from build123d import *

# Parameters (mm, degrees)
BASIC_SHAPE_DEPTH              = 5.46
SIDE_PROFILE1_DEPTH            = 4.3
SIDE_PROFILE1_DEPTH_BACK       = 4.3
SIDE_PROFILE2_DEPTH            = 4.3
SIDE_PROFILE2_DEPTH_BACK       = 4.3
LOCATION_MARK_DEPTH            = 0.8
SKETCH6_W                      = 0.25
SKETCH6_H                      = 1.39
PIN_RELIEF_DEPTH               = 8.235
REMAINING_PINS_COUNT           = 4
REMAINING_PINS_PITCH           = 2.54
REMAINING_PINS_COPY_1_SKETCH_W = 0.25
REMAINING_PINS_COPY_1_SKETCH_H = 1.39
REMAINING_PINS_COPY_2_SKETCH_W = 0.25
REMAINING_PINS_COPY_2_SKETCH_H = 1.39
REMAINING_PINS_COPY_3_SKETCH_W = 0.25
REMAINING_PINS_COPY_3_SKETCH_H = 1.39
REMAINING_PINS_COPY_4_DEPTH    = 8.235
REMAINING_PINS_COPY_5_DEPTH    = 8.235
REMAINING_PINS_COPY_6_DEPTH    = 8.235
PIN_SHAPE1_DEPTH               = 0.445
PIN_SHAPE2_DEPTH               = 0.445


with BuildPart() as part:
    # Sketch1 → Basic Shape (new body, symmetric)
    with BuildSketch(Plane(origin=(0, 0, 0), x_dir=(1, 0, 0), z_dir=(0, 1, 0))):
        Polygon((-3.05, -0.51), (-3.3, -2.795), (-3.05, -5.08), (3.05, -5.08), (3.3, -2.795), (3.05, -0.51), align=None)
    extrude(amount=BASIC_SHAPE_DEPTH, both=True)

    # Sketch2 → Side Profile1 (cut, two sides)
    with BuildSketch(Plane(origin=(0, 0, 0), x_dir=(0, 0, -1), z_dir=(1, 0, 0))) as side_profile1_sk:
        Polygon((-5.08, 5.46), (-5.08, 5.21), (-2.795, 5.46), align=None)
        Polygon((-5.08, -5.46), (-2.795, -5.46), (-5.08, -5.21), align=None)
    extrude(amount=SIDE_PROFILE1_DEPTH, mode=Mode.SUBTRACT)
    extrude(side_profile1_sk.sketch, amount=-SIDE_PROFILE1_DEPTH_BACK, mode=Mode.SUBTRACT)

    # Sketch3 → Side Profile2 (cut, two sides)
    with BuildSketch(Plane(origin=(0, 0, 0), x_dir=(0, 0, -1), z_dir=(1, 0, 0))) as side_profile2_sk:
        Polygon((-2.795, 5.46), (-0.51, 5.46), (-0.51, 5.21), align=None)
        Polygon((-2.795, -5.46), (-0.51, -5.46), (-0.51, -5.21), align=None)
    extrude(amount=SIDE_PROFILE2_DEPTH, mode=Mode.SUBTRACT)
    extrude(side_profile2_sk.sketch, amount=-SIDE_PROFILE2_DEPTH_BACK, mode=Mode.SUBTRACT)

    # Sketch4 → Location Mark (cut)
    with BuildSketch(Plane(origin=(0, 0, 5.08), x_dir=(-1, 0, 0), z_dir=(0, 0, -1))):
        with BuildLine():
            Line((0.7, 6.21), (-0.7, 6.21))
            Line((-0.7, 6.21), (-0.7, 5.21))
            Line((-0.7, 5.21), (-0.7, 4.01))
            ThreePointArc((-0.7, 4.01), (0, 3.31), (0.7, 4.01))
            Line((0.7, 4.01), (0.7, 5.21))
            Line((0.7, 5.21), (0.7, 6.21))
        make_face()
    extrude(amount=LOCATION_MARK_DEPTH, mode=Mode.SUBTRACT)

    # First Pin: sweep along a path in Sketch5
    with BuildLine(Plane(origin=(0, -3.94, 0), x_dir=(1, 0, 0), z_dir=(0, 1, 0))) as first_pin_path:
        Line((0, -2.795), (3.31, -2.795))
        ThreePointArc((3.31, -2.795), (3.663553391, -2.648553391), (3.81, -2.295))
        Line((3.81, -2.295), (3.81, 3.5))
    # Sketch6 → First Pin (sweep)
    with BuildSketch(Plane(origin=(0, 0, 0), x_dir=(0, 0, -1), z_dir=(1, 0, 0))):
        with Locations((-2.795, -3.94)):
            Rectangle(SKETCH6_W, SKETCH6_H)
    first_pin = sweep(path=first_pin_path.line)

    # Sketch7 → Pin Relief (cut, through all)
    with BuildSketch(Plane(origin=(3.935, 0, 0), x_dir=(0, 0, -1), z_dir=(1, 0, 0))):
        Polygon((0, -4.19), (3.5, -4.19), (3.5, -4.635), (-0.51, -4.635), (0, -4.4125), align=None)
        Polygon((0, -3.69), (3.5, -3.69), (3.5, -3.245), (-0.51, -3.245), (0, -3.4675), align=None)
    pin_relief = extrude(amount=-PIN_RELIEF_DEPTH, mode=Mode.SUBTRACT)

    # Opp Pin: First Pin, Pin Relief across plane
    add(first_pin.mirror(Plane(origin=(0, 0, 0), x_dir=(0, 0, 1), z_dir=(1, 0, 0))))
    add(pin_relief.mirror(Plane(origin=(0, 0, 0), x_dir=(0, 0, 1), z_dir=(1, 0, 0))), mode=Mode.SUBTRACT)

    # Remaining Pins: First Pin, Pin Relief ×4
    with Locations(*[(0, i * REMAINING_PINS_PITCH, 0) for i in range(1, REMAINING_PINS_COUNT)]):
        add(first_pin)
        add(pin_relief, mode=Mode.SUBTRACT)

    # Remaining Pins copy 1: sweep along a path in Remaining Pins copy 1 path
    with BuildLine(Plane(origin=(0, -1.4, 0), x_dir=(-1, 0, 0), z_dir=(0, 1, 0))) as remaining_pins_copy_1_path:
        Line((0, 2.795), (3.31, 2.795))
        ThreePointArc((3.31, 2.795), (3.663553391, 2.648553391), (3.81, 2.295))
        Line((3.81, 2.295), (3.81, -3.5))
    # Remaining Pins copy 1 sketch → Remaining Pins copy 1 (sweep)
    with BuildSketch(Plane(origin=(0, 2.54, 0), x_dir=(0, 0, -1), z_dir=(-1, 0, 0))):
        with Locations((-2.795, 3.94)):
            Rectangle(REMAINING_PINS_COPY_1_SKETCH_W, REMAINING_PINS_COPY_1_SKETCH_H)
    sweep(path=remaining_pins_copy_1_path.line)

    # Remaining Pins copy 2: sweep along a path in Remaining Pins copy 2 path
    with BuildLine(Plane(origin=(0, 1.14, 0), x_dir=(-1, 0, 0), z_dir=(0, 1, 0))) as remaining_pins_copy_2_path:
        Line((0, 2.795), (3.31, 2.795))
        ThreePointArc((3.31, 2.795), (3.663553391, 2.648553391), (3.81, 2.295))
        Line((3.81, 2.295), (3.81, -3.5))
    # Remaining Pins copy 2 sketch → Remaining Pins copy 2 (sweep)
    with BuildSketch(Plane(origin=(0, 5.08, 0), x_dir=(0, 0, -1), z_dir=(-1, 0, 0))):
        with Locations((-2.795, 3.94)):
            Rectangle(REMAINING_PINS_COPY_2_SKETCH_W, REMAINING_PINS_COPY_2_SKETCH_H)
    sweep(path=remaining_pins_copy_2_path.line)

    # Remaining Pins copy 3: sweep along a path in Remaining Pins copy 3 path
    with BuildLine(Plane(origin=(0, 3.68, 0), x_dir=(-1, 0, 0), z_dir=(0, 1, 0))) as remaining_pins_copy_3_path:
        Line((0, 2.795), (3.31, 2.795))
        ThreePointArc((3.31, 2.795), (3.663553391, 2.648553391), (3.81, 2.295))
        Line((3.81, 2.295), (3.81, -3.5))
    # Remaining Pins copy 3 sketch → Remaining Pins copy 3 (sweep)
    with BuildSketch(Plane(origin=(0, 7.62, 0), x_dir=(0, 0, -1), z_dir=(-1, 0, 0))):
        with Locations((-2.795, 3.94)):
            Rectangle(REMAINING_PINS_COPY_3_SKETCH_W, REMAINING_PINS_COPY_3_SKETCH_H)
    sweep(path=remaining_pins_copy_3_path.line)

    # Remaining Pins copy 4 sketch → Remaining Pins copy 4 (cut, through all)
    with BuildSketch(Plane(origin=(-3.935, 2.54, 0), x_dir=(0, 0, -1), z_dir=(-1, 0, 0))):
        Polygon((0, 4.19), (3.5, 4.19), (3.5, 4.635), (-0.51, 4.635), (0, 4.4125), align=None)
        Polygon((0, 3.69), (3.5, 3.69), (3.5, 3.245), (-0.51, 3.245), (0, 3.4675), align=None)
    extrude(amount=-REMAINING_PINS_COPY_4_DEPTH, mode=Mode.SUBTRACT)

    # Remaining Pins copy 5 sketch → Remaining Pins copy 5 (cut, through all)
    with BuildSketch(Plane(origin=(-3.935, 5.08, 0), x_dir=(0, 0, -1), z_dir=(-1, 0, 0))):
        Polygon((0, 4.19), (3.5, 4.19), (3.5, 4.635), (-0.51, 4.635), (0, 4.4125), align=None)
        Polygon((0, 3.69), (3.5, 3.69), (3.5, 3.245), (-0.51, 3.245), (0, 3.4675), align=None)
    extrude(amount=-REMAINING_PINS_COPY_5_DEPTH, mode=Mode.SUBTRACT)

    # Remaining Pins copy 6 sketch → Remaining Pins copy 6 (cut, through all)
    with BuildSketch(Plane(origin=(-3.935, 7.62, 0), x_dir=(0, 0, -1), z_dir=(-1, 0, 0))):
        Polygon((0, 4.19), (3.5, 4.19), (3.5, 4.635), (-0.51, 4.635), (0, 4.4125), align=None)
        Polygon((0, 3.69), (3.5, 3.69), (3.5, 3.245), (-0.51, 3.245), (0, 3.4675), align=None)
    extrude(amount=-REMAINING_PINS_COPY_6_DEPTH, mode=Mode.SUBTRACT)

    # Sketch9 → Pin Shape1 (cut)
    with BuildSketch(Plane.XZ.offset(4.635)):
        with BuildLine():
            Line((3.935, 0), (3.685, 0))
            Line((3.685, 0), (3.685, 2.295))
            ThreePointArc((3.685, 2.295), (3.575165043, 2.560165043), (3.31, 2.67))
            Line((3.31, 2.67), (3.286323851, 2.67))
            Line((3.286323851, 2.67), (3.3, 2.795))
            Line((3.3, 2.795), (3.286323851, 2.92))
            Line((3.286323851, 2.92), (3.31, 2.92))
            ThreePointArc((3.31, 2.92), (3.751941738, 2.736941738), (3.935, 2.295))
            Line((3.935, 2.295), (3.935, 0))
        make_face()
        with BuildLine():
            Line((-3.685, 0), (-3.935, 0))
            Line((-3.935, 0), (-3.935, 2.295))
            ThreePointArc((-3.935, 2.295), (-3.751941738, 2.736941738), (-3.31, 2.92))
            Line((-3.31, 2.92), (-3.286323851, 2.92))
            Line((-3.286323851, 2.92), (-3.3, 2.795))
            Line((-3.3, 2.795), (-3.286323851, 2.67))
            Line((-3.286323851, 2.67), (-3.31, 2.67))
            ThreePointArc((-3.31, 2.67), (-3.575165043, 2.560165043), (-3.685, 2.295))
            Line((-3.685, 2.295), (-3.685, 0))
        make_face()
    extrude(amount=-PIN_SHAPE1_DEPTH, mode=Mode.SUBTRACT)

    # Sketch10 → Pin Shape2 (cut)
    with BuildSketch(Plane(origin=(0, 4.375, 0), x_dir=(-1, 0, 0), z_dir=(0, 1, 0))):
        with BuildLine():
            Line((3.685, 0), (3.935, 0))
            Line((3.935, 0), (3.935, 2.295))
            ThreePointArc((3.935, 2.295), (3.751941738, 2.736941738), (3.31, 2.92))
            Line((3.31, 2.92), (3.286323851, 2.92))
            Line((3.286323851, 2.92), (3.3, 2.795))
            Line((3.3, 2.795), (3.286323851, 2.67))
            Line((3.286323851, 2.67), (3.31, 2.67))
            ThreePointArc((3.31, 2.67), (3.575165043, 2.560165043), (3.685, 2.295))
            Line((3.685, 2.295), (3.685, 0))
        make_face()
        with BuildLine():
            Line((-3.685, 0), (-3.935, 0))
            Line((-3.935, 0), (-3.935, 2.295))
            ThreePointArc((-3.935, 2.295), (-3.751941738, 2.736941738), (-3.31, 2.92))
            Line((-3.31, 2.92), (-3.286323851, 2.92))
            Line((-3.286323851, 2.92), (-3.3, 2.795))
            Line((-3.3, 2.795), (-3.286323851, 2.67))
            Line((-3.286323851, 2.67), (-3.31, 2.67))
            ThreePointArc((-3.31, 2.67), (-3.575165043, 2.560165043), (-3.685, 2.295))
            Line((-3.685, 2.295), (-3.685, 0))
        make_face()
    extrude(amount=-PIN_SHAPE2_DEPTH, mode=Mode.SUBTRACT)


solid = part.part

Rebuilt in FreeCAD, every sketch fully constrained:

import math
import FreeCAD as App
import Part
import Sketcher


def add_polygon(sketch, points):
    """Adds a closed chain of lines whose ends are joined by coincident constraints."""
    first, n = sketch.GeometryCount, len(points)
    for a, b in zip(points, points[1:] + points[:1]):
        sketch.addGeometry(Part.LineSegment(App.Vector(*a, 0), App.Vector(*b, 0)), False)
    for i in range(n):
        sketch.addConstraint(Sketcher.Constraint("Coincident", first + i, 2, first + (i + 1) % n, 1))

doc = App.newDocument("Part")
params = doc.addObject("Spreadsheet::Sheet", "Params")
for row, (alias, value) in enumerate([
    ("sketch1_width", "6.1 mm"),
    ("pad1_length", "10.92 mm"),
    ("sketch2_width", "0.25 mm"),
    ("sketch3_width", "0.25 mm"),
    ("sketch4_radius", "0.7 mm"),
    ("sketch4_height", "2.2 mm"),
    ("pocket3_length", "0.8 mm"),
    ("sketch5_width", "1.39 mm"),
    ("sketch5_height", "0.25 mm"),
    ("sketch6_radius", "0.5 mm"),
    ("sketch6_width", "3.31 mm"),
    ("sketch7_height", "3.5 mm"),
    ("sketch7_height2", "4.01 mm"),
    ("linearpattern_pitch", "2.54 mm"),
    ("sketch8_width", "1.39 mm"),
    ("sketch8_height", "0.25 mm"),
    ("sketch9_radius", "0.5 mm"),
    ("sketch9_width", "3.31 mm"),
    ("sketch10_width", "1.39 mm"),
    ("sketch10_height", "0.25 mm"),
    ("sketch11_radius", "0.5 mm"),
    ("sketch11_width", "3.31 mm"),
    ("sketch12_width", "1.39 mm"),
    ("sketch12_height", "0.25 mm"),
    ("sketch13_radius", "0.5 mm"),
    ("sketch13_width", "3.31 mm"),
    ("sketch14_height", "3.5 mm"),
    ("sketch14_height2", "4.01 mm"),
    ("sketch15_height", "3.5 mm"),
    ("sketch15_height2", "4.01 mm"),
    ("sketch16_height", "3.5 mm"),
    ("sketch16_height2", "4.01 mm"),
    ("pocket8_length", "0.445 mm"),
    ("pocket9_length", "0.445 mm"),
], start=1):
    params.set(f"A{row}", alias)
    params.set(f"B{row}", "=" + value)
    params.setAlias(f"B{row}", alias)

body = doc.addObject("PartDesign::Body", "Body")

# Sketch on XZ plane
sketch1 = doc.addObject("Sketcher::SketchObject", "Sketch")
body.addObject(sketch1)
sketch1.AttachmentSupport = (doc.XZ_Plane, [""])
sketch1.MapMode = "FlatFace"
add_polygon(sketch1, [(-3.05, 0.51), (-3.3, 2.795), (-3.05, 5.08), (3.05, 5.08), (3.3, 2.795), (3.05, 0.51)])  # lines 0-5
sketch1.addConstraint([
    Sketcher.Constraint("Horizontal", 2),
    Sketcher.Constraint("Horizontal", 5),
    Sketcher.Constraint("Symmetric", 0, 2, 3, 2, -2),
    Sketcher.Constraint("Parallel", 0, 3),
    Sketcher.Constraint("Parallel", 1, 4),
    Sketcher.Constraint("Vertical", 2, 2, 4, 2),
    Sketcher.Constraint("Vertical", 1, 2, 5, 2),
    Sketcher.Constraint("DistanceX", 2, 1, 2, 2, 6.1),
    Sketcher.Constraint("DistanceX", 0, 2, -1, 1, 3.3),
    Sketcher.Constraint("DistanceY", -1, 1, 1, 2, 5.08),
    Sketcher.Constraint("DistanceY", -1, 1, 4, 2, 0.51),
])
sketch1.setExpression("Constraints[13]", "Params.sketch1_width")
pad1 = doc.addObject("PartDesign::Pad", "Pad")
body.addObject(pad1)
pad1.Profile = sketch1
pad1.setExpression("Length", "Params.pad1_length")
pad1.Midplane = True

# Sketch on YZ plane
sketch2 = doc.addObject("Sketcher::SketchObject", "Sketch001")
body.addObject(sketch2)
sketch2.AttachmentSupport = (doc.YZ_Plane, [""])
sketch2.MapMode = "FlatFace"
add_polygon(sketch2, [(5.46, 5.08), (5.21, 5.08), (5.46, 2.795)])  # lines 0-2
add_polygon(sketch2, [(-5.46, 5.08), (-5.46, 2.795), (-5.21, 5.08)])  # lines 3-5
sketch2.addConstraint([
    Sketcher.Constraint("Horizontal", 0),
    Sketcher.Constraint("Vertical", 2),
    Sketcher.Constraint("Vertical", 3),
    Sketcher.Constraint("Horizontal", 5),
    Sketcher.Constraint("Symmetric", 1, 2, 3, 2, -2),
    Sketcher.Constraint("Symmetric", 0, 2, 4, 2, -2),
    Sketcher.Constraint("DistanceX", 0, 2, 0, 1, 0.25),
    Sketcher.Constraint("DistanceY", 2, 1, 2, 2, 2.285),
    Sketcher.Constraint("DistanceX", -1, 1, 0, 2, 5.21),
    Sketcher.Constraint("DistanceY", -1, 1, 0, 2, 5.08),
])
sketch2.setExpression("Constraints[12]", "Params.sketch2_width")
pocket1 = doc.addObject("PartDesign::Pocket", "Pocket")
body.addObject(pocket1)
pocket1.Profile = sketch2
pocket1.Type = "ThroughAll"
pocket1.Midplane = True

# Sketch on YZ plane
sketch3 = doc.addObject("Sketcher::SketchObject", "Sketch002")
body.addObject(sketch3)
sketch3.AttachmentSupport = (doc.YZ_Plane, [""])
sketch3.MapMode = "FlatFace"
add_polygon(sketch3, [(5.46, 0.51), (5.46, 2.795), (5.21, 0.51)])  # lines 0-2
add_polygon(sketch3, [(-5.46, 2.795), (-5.46, 0.51), (-5.21, 0.51)])  # lines 3-5
sketch3.addConstraint([
    Sketcher.Constraint("Vertical", 0),
    Sketcher.Constraint("Horizontal", 2),
    Sketcher.Constraint("Vertical", 3),
    Sketcher.Constraint("Horizontal", 4),
    Sketcher.Constraint("Symmetric", 2, 2, 3, 2, -2),
    Sketcher.Constraint("Horizontal", 0, 2, 5, 2),
    Sketcher.Constraint("Equal", 2, 4),
    Sketcher.Constraint("DistanceX", 2, 1, 2, 2, 0.25),
    Sketcher.Constraint("DistanceY", 0, 1, 0, 2, 2.285),
    Sketcher.Constraint("DistanceX", -1, 1, 0, 2, 5.46),
    Sketcher.Constraint("DistanceY", -1, 1, 1, 2, 0.51),
])
sketch3.setExpression("Constraints[13]", "Params.sketch3_width")
pocket2 = doc.addObject("PartDesign::Pocket", "Pocket001")
body.addObject(pocket2)
pocket2.Profile = sketch3
pocket2.Type = "ThroughAll"
pocket2.Midplane = True

# Sketch on XY plane
sketch4 = doc.addObject("Sketcher::SketchObject", "Sketch003")
body.addObject(sketch4)
sketch4.AttachmentSupport = (doc.XY_Plane, [""])
sketch4.MapMode = "FlatFace"
sketch4.AttachmentOffset = App.Placement(App.Vector(0, 0, 5.08), App.Rotation())
sketch4.addGeometry([
    Part.LineSegment(App.Vector(-0.7, 6.21, 0), App.Vector(0.7, 6.21, 0)),
    Part.LineSegment(App.Vector(0.7, 6.21, 0), App.Vector(0.7, 4.01, 0)),
    Part.ArcOfCircle(Part.Circle(App.Vector(0, 4.01, 0), App.Vector(0, 0, 1), 0.7), math.radians(180), math.radians(360)),
    Part.LineSegment(App.Vector(-0.7, 4.01, 0), App.Vector(-0.7, 6.21, 0)),
], False)
sketch4.addConstraint([
    Sketcher.Constraint("Coincident", 0, 2, 1, 1),
    Sketcher.Constraint("Tangent", 1, 2, 2, 2),
    Sketcher.Constraint("Tangent", 2, 1, 3, 1),
    Sketcher.Constraint("Coincident", 3, 2, 0, 1),
    Sketcher.Constraint("Horizontal", 0),
    Sketcher.Constraint("Vertical", 1),
    Sketcher.Constraint("Vertical", 3),
    Sketcher.Constraint("PointOnObject", 2, 3, -2),
    Sketcher.Constraint("Radius", 2, 0.7),
    Sketcher.Constraint("DistanceY", 1, 2, 1, 1, 2.2),
    Sketcher.Constraint("DistanceY", -1, 1, 2, 3, 4.01),
])
sketch4.setExpression("Constraints[8]", "Params.sketch4_radius")
sketch4.setExpression("Constraints[9]", "Params.sketch4_height")
pocket3 = doc.addObject("PartDesign::Pocket", "Pocket002")
body.addObject(pocket3)
pocket3.Profile = sketch4
pocket3.setExpression("Length", "Params.pocket3_length")

# Sketch on YZ plane
sketch5 = doc.addObject("Sketcher::SketchObject", "Sketch004")
body.addObject(sketch5)
sketch5.AttachmentSupport = (doc.YZ_Plane, [""])
sketch5.MapMode = "FlatFace"
add_polygon(sketch5, [(-3.245, 2.92), (-4.635, 2.92), (-4.635, 2.67), (-3.245, 2.67)])  # lines 0-3
sketch5.addConstraint([
    Sketcher.Constraint("Horizontal", 0),
    Sketcher.Constraint("Vertical", 1),
    Sketcher.Constraint("Horizontal", 2),
    Sketcher.Constraint("Vertical", 3),
    Sketcher.Constraint("DistanceX", 0, 2, 0, 1, 1.39),
    Sketcher.Constraint("DistanceY", 1, 2, 1, 1, 0.25),
    Sketcher.Constraint("DistanceY", -1, 1, 0, 2, 2.92),
    Sketcher.Constraint("DistanceX", 0, 2, -1, 1, 4.635),
])
sketch5.setExpression("Constraints[8]", "Params.sketch5_width")
sketch5.setExpression("Constraints[9]", "Params.sketch5_height")

# Sketch on XZ plane
sketch6 = doc.addObject("Sketcher::SketchObject", "Sketch005")
body.addObject(sketch6)
sketch6.AttachmentSupport = (doc.XZ_Plane, [""])
sketch6.MapMode = "FlatFace"
sketch6.AttachmentOffset = App.Placement(App.Vector(0, 0, 3.94), App.Rotation())
sketch6.addGeometry([
    Part.LineSegment(App.Vector(0, 2.795, 0), App.Vector(3.31, 2.795, 0)),
    Part.ArcOfCircle(Part.Circle(App.Vector(3.31, 2.295, 0), App.Vector(0, 0, 1), 0.5), math.radians(0), math.radians(90)),
    Part.LineSegment(App.Vector(3.81, 2.295, 0), App.Vector(3.81, -3.5, 0)),
], False)
sketch6.addConstraint([
    Sketcher.Constraint("Tangent", 0, 2, 1, 2),
    Sketcher.Constraint("Tangent", 1, 1, 2, 1),
    Sketcher.Constraint("Horizontal", 0),
    Sketcher.Constraint("Vertical", 2),
    Sketcher.Constraint("PointOnObject", 0, 1, -2),
    Sketcher.Constraint("Radius", 1, 0.5),
    Sketcher.Constraint("DistanceX", 0, 1, 0, 2, 3.31),
    Sketcher.Constraint("DistanceY", 2, 2, -1, 1, 3.5),
    Sketcher.Constraint("DistanceY", 2, 2, 2, 1, 5.795),
])
sketch6.setExpression("Constraints[5]", "Params.sketch6_radius")
sketch6.setExpression("Constraints[6]", "Params.sketch6_width")
doc.recompute()

additivepipe = doc.addObject("PartDesign::AdditivePipe", "AdditivePipe")
body.addObject(additivepipe)
additivepipe.Profile = sketch5
additivepipe.Spine = (sketch6, ["Edge1", "Edge2", "Edge3"])

# Sketch on YZ plane
sketch7 = doc.addObject("Sketcher::SketchObject", "Sketch006")
body.addObject(sketch7)
sketch7.AttachmentSupport = (doc.YZ_Plane, [""])
sketch7.MapMode = "FlatFace"
sketch7.AttachmentOffset = App.Placement(App.Vector(0, 0, 3.935), App.Rotation())
add_polygon(sketch7, [(-4.19, -3.5), (-4.19, 0), (-4.4125, 0), (-4.635, 0.51), (-4.635, -3.5)])  # lines 0-4
add_polygon(sketch7, [(-3.69, 0), (-3.69, -3.5), (-3.245, -3.5), (-3.245, 0.51), (-3.4675, 0)])  # lines 5-9
sketch7.addConstraint([
    Sketcher.Constraint("Vertical", 0),
    Sketcher.Constraint("Horizontal", 1),
    Sketcher.Constraint("Vertical", 3),
    Sketcher.Constraint("Horizontal", 4),
    Sketcher.Constraint("Vertical", 5),
    Sketcher.Constraint("Horizontal", 6),
    Sketcher.Constraint("Vertical", 7),
    Sketcher.Constraint("Horizontal", 9),
    Sketcher.Constraint("PointOnObject", 0, 2, -1),
    Sketcher.Constraint("PointOnObject", 8, 2, -1),
    Sketcher.Constraint("Horizontal", 4, 2, 5, 2),
    Sketcher.Constraint("Horizontal", 2, 2, 7, 2),
    Sketcher.Constraint("Equal", 4, 6),
    Sketcher.Constraint("Equal", 1, 9),
    Sketcher.Constraint("DistanceY", 0, 1, 0, 2, 3.5),
    Sketcher.Constraint("DistanceY", 3, 2, 3, 1, 4.01),
    Sketcher.Constraint("DistanceX", 4, 2, 5, 2, 0.5),
    Sketcher.Constraint("DistanceX", 4, 1, 4, 2, 0.445),
    Sketcher.Constraint("DistanceX", 0, 2, -1, 1, 4.19),
    Sketcher.Constraint("DistanceX", 1, 2, 1, 1, 0.2225),
])
sketch7.setExpression("Constraints[24]", "Params.sketch7_height")
sketch7.setExpression("Constraints[25]", "Params.sketch7_height2")
pocket4 = doc.addObject("PartDesign::Pocket", "Pocket003")
body.addObject(pocket4)
pocket4.Profile = sketch7
pocket4.Type = "ThroughAll"
doc.recompute()

mirrored = doc.addObject("PartDesign::Mirrored", "Mirrored")
body.addObject(mirrored)
mirrored.Originals = [additivepipe, pocket4]
mirrored.MirrorPlane = (doc.YZ_Plane, [""])
body.Tip = mirrored
doc.recompute()

linearpattern = doc.addObject("PartDesign::LinearPattern", "LinearPattern")
body.addObject(linearpattern)
linearpattern.Originals = [additivepipe, pocket4]
linearpattern.Direction = (doc.Y_Axis, [""])
linearpattern.Mode = "offset"
linearpattern.setExpression("Offset", "Params.linearpattern_pitch")
linearpattern.Occurrences = 4
body.Tip = linearpattern

# Sketch on YZ plane
sketch8 = doc.addObject("Sketcher::SketchObject", "Sketch007")
body.addObject(sketch8)
sketch8.AttachmentSupport = (doc.YZ_Plane, [""])
sketch8.MapMode = "FlatFace"
add_polygon(sketch8, [(-2.095, 2.92), (-0.705, 2.92), (-0.705, 2.67), (-2.095, 2.67)])  # lines 0-3
sketch8.addConstraint([
    Sketcher.Constraint("Horizontal", 0),
    Sketcher.Constraint("Vertical", 1),
    Sketcher.Constraint("Horizontal", 2),
    Sketcher.Constraint("Vertical", 3),
    Sketcher.Constraint("DistanceX", 0, 1, 0, 2, 1.39),
    Sketcher.Constraint("DistanceY", 1, 2, 1, 1, 0.25),
    Sketcher.Constraint("DistanceY", -1, 1, 0, 2, 2.92),
    Sketcher.Constraint("DistanceX", 0, 2, -1, 1, 0.705),
])
sketch8.setExpression("Constraints[8]", "Params.sketch8_width")
sketch8.setExpression("Constraints[9]", "Params.sketch8_height")

# Sketch on XZ plane
sketch9 = doc.addObject("Sketcher::SketchObject", "Sketch008")
body.addObject(sketch9)
sketch9.AttachmentSupport = (doc.XZ_Plane, [""])
sketch9.MapMode = "FlatFace"
sketch9.AttachmentOffset = App.Placement(App.Vector(0, 0, 1.4), App.Rotation())
sketch9.addGeometry([
    Part.LineSegment(App.Vector(0, 2.795, 0), App.Vector(-3.31, 2.795, 0)),
    Part.ArcOfCircle(Part.Circle(App.Vector(-3.31, 2.295, 0), App.Vector(0, 0, 1), 0.5), math.radians(90), math.radians(180)),
    Part.LineSegment(App.Vector(-3.81, 2.295, 0), App.Vector(-3.81, -3.5, 0)),
], False)
sketch9.addConstraint([
    Sketcher.Constraint("Tangent", 0, 2, 1, 1),
    Sketcher.Constraint("Tangent", 1, 2, 2, 1),
    Sketcher.Constraint("Horizontal", 0),
    Sketcher.Constraint("Vertical", 2),
    Sketcher.Constraint("PointOnObject", 0, 1, -2),
    Sketcher.Constraint("Radius", 1, 0.5),
    Sketcher.Constraint("DistanceX", 0, 2, 0, 1, 3.31),
    Sketcher.Constraint("DistanceY", 2, 2, -1, 1, 3.5),
    Sketcher.Constraint("DistanceY", 2, 2, 2, 1, 5.795),
])
sketch9.setExpression("Constraints[5]", "Params.sketch9_radius")
sketch9.setExpression("Constraints[6]", "Params.sketch9_width")
doc.recompute()

additivepipe2 = doc.addObject("PartDesign::AdditivePipe", "AdditivePipe001")
body.addObject(additivepipe2)
additivepipe2.Profile = sketch8
additivepipe2.Spine = (sketch9, ["Edge1", "Edge2", "Edge3"])

# Sketch on YZ plane
sketch10 = doc.addObject("Sketcher::SketchObject", "Sketch009")
body.addObject(sketch10)
sketch10.AttachmentSupport = (doc.YZ_Plane, [""])
sketch10.MapMode = "FlatFace"
add_polygon(sketch10, [(0.445, 2.92), (1.835, 2.92), (1.835, 2.67), (0.445, 2.67)])  # lines 0-3
sketch10.addConstraint([
    Sketcher.Constraint("Horizontal", 0),
    Sketcher.Constraint("Vertical", 1),
    Sketcher.Constraint("Horizontal", 2),
    Sketcher.Constraint("Vertical", 3),
    Sketcher.Constraint("DistanceX", 0, 1, 0, 2, 1.39),
    Sketcher.Constraint("DistanceY", 1, 2, 1, 1, 0.25),
    Sketcher.Constraint("DistanceY", -1, 1, 0, 2, 2.92),
    Sketcher.Constraint("DistanceX", -1, 1, 0, 2, 1.835),
])
sketch10.setExpression("Constraints[8]", "Params.sketch10_width")
sketch10.setExpression("Constraints[9]", "Params.sketch10_height")

# Sketch on XZ plane
sketch11 = doc.addObject("Sketcher::SketchObject", "Sketch010")
body.addObject(sketch11)
sketch11.AttachmentSupport = (doc.XZ_Plane, [""])
sketch11.MapMode = "FlatFace"
sketch11.AttachmentOffset = App.Placement(App.Vector(0, 0, -1.14), App.Rotation())
sketch11.addGeometry([
    Part.LineSegment(App.Vector(0, 2.795, 0), App.Vector(-3.31, 2.795, 0)),
    Part.ArcOfCircle(Part.Circle(App.Vector(-3.31, 2.295, 0), App.Vector(0, 0, 1), 0.5), math.radians(90), math.radians(180)),
    Part.LineSegment(App.Vector(-3.81, 2.295, 0), App.Vector(-3.81, -3.5, 0)),
], False)
sketch11.addConstraint([
    Sketcher.Constraint("Tangent", 0, 2, 1, 1),
    Sketcher.Constraint("Tangent", 1, 2, 2, 1),
    Sketcher.Constraint("Horizontal", 0),
    Sketcher.Constraint("Vertical", 2),
    Sketcher.Constraint("PointOnObject", 0, 1, -2),
    Sketcher.Constraint("Radius", 1, 0.5),
    Sketcher.Constraint("DistanceX", 0, 2, 0, 1, 3.31),
    Sketcher.Constraint("DistanceY", 2, 2, -1, 1, 3.5),
    Sketcher.Constraint("DistanceY", 2, 2, 2, 1, 5.795),
])
sketch11.setExpression("Constraints[5]", "Params.sketch11_radius")
sketch11.setExpression("Constraints[6]", "Params.sketch11_width")
doc.recompute()

additivepipe3 = doc.addObject("PartDesign::AdditivePipe", "AdditivePipe002")
body.addObject(additivepipe3)
additivepipe3.Profile = sketch10
additivepipe3.Spine = (sketch11, ["Edge1", "Edge2", "Edge3"])

# Sketch on YZ plane
sketch12 = doc.addObject("Sketcher::SketchObject", "Sketch011")
body.addObject(sketch12)
sketch12.AttachmentSupport = (doc.YZ_Plane, [""])
sketch12.MapMode = "FlatFace"
add_polygon(sketch12, [(2.985, 2.92), (4.375, 2.92), (4.375, 2.67), (2.985, 2.67)])  # lines 0-3
sketch12.addConstraint([
    Sketcher.Constraint("Horizontal", 0),
    Sketcher.Constraint("Vertical", 1),
    Sketcher.Constraint("Horizontal", 2),
    Sketcher.Constraint("Vertical", 3),
    Sketcher.Constraint("DistanceX", 0, 1, 0, 2, 1.39),
    Sketcher.Constraint("DistanceY", 1, 2, 1, 1, 0.25),
    Sketcher.Constraint("DistanceY", -1, 1, 0, 2, 2.92),
    Sketcher.Constraint("DistanceX", -1, 1, 0, 2, 4.375),
])
sketch12.setExpression("Constraints[8]", "Params.sketch12_width")
sketch12.setExpression("Constraints[9]", "Params.sketch12_height")

# Sketch on XZ plane
sketch13 = doc.addObject("Sketcher::SketchObject", "Sketch012")
body.addObject(sketch13)
sketch13.AttachmentSupport = (doc.XZ_Plane, [""])
sketch13.MapMode = "FlatFace"
sketch13.AttachmentOffset = App.Placement(App.Vector(0, 0, -3.68), App.Rotation())
sketch13.addGeometry([
    Part.LineSegment(App.Vector(0, 2.795, 0), App.Vector(-3.31, 2.795, 0)),
    Part.ArcOfCircle(Part.Circle(App.Vector(-3.31, 2.295, 0), App.Vector(0, 0, 1), 0.5), math.radians(90), math.radians(180)),
    Part.LineSegment(App.Vector(-3.81, 2.295, 0), App.Vector(-3.81, -3.5, 0)),
], False)
sketch13.addConstraint([
    Sketcher.Constraint("Tangent", 0, 2, 1, 1),
    Sketcher.Constraint("Tangent", 1, 2, 2, 1),
    Sketcher.Constraint("Horizontal", 0),
    Sketcher.Constraint("Vertical", 2),
    Sketcher.Constraint("PointOnObject", 0, 1, -2),
    Sketcher.Constraint("Radius", 1, 0.5),
    Sketcher.Constraint("DistanceX", 0, 2, 0, 1, 3.31),
    Sketcher.Constraint("DistanceY", 2, 2, -1, 1, 3.5),
    Sketcher.Constraint("DistanceY", 2, 2, 2, 1, 5.795),
])
sketch13.setExpression("Constraints[5]", "Params.sketch13_radius")
sketch13.setExpression("Constraints[6]", "Params.sketch13_width")
doc.recompute()

additivepipe4 = doc.addObject("PartDesign::AdditivePipe", "AdditivePipe003")
body.addObject(additivepipe4)
additivepipe4.Profile = sketch12
additivepipe4.Spine = (sketch13, ["Edge1", "Edge2", "Edge3"])

# Sketch on YZ plane
sketch14 = doc.addObject("Sketcher::SketchObject", "Sketch013")
body.addObject(sketch14)
sketch14.AttachmentSupport = (doc.YZ_Plane, [""])
sketch14.MapMode = "FlatFace"
sketch14.AttachmentOffset = App.Placement(App.Vector(0, 0, -3.935), App.Rotation())
add_polygon(sketch14, [(-1.65, 0), (-1.65, -3.5), (-2.095, -3.5), (-2.095, 0.51), (-1.8725, 0)])  # lines 0-4
add_polygon(sketch14, [(-1.15, -3.5), (-1.15, 0), (-0.9275, 0), (-0.705, 0.51), (-0.705, -3.5)])  # lines 5-9
sketch14.addConstraint([
    Sketcher.Constraint("Vertical", 0),
    Sketcher.Constraint("Horizontal", 1),
    Sketcher.Constraint("Vertical", 2),
    Sketcher.Constraint("Horizontal", 4),
    Sketcher.Constraint("Vertical", 5),
    Sketcher.Constraint("Horizontal", 6),
    Sketcher.Constraint("Vertical", 8),
    Sketcher.Constraint("Horizontal", 9),
    Sketcher.Constraint("PointOnObject", 3, 2, -1),
    Sketcher.Constraint("PointOnObject", 5, 2, -1),
    Sketcher.Constraint("Horizontal", 2, 2, 7, 2),
    Sketcher.Constraint("Horizontal", 1, 2, 8, 2),
    Sketcher.Constraint("Equal", 4, 6),
    Sketcher.Constraint("Equal", 1, 9),
    Sketcher.Constraint("DistanceY", 0, 2, 0, 1, 3.5),
    Sketcher.Constraint("DistanceY", 2, 1, 2, 2, 4.01),
    Sketcher.Constraint("DistanceX", 4, 2, 5, 2, 0.5),
    Sketcher.Constraint("DistanceX", 1, 2, 1, 1, 0.445),
    Sketcher.Constraint("DistanceX", 0, 2, -1, 1, 1.65),
    Sketcher.Constraint("DistanceX", 4, 1, 4, 2, 0.2225),
])
sketch14.setExpression("Constraints[24]", "Params.sketch14_height")
sketch14.setExpression("Constraints[25]", "Params.sketch14_height2")
pocket5 = doc.addObject("PartDesign::Pocket", "Pocket004")
body.addObject(pocket5)
pocket5.Profile = sketch14
pocket5.Type = "ThroughAll"
pocket5.Reversed = True

# Sketch on YZ plane
sketch15 = doc.addObject("Sketcher::SketchObject", "Sketch014")
body.addObject(sketch15)
sketch15.AttachmentSupport = (doc.YZ_Plane, [""])
sketch15.MapMode = "FlatFace"
sketch15.AttachmentOffset = App.Placement(App.Vector(0, 0, -3.935), App.Rotation())
add_polygon(sketch15, [(0.89, 0), (0.89, -3.5), (0.445, -3.5), (0.445, 0.51), (0.6675, 0)])  # lines 0-4
add_polygon(sketch15, [(1.39, -3.5), (1.39, 0), (1.6125, 0), (1.835, 0.51), (1.835, -3.5)])  # lines 5-9
sketch15.addConstraint([
    Sketcher.Constraint("Vertical", 0),
    Sketcher.Constraint("Horizontal", 1),
    Sketcher.Constraint("Vertical", 2),
    Sketcher.Constraint("Horizontal", 4),
    Sketcher.Constraint("Vertical", 5),
    Sketcher.Constraint("Horizontal", 6),
    Sketcher.Constraint("Vertical", 8),
    Sketcher.Constraint("Horizontal", 9),
    Sketcher.Constraint("PointOnObject", 3, 2, -1),
    Sketcher.Constraint("PointOnObject", 5, 2, -1),
    Sketcher.Constraint("Horizontal", 2, 2, 7, 2),
    Sketcher.Constraint("Horizontal", 1, 2, 8, 2),
    Sketcher.Constraint("Equal", 4, 6),
    Sketcher.Constraint("Equal", 1, 9),
    Sketcher.Constraint("DistanceY", 0, 2, 0, 1, 3.5),
    Sketcher.Constraint("DistanceY", 2, 1, 2, 2, 4.01),
    Sketcher.Constraint("DistanceX", 4, 2, 5, 2, 0.5),
    Sketcher.Constraint("DistanceX", 1, 2, 1, 1, 0.445),
    Sketcher.Constraint("DistanceX", -1, 1, 0, 2, 0.89),
    Sketcher.Constraint("DistanceX", 4, 1, 4, 2, 0.2225),
])
sketch15.setExpression("Constraints[24]", "Params.sketch15_height")
sketch15.setExpression("Constraints[25]", "Params.sketch15_height2")
pocket6 = doc.addObject("PartDesign::Pocket", "Pocket005")
body.addObject(pocket6)
pocket6.Profile = sketch15
pocket6.Type = "ThroughAll"
pocket6.Reversed = True

# Sketch on YZ plane
sketch16 = doc.addObject("Sketcher::SketchObject", "Sketch015")
body.addObject(sketch16)
sketch16.AttachmentSupport = (doc.YZ_Plane, [""])
sketch16.MapMode = "FlatFace"
sketch16.AttachmentOffset = App.Placement(App.Vector(0, 0, -3.935), App.Rotation())
add_polygon(sketch16, [(3.43, 0), (3.43, -3.5), (2.985, -3.5), (2.985, 0.51), (3.2075, 0)])  # lines 0-4
add_polygon(sketch16, [(3.93, -3.5), (3.93, 0), (4.1525, 0), (4.375, 0.51), (4.375, -3.5)])  # lines 5-9
sketch16.addConstraint([
    Sketcher.Constraint("Vertical", 0),
    Sketcher.Constraint("Horizontal", 1),
    Sketcher.Constraint("Vertical", 2),
    Sketcher.Constraint("Horizontal", 4),
    Sketcher.Constraint("Vertical", 5),
    Sketcher.Constraint("Horizontal", 6),
    Sketcher.Constraint("Vertical", 8),
    Sketcher.Constraint("Horizontal", 9),
    Sketcher.Constraint("PointOnObject", 3, 2, -1),
    Sketcher.Constraint("PointOnObject", 5, 2, -1),
    Sketcher.Constraint("Horizontal", 2, 2, 7, 2),
    Sketcher.Constraint("Horizontal", 1, 2, 8, 2),
    Sketcher.Constraint("Equal", 4, 6),
    Sketcher.Constraint("Equal", 1, 9),
    Sketcher.Constraint("DistanceY", 0, 2, 0, 1, 3.5),
    Sketcher.Constraint("DistanceY", 2, 1, 2, 2, 4.01),
    Sketcher.Constraint("DistanceX", 4, 2, 5, 2, 0.5),
    Sketcher.Constraint("DistanceX", 1, 2, 1, 1, 0.445),
    Sketcher.Constraint("DistanceX", -1, 1, 0, 2, 3.43),
    Sketcher.Constraint("DistanceX", 4, 1, 4, 2, 0.2225),
])
sketch16.setExpression("Constraints[24]", "Params.sketch16_height")
sketch16.setExpression("Constraints[25]", "Params.sketch16_height2")
pocket7 = doc.addObject("PartDesign::Pocket", "Pocket006")
body.addObject(pocket7)
pocket7.Profile = sketch16
pocket7.Type = "ThroughAll"
pocket7.Reversed = True

# Sketch on XZ plane
sketch17 = doc.addObject("Sketcher::SketchObject", "Sketch016")
body.addObject(sketch17)
sketch17.AttachmentSupport = (doc.XZ_Plane, [""])
sketch17.MapMode = "FlatFace"
sketch17.AttachmentOffset = App.Placement(App.Vector(0, 0, 4.635), App.Rotation())
sketch17.addGeometry([
    Part.LineSegment(App.Vector(3.685, 0, 0), App.Vector(3.935, 0, 0)),  # 0
    Part.LineSegment(App.Vector(3.935, 0, 0), App.Vector(3.935, 2.295, 0)),  # 1
    Part.ArcOfCircle(Part.Circle(App.Vector(3.31, 2.295, 0), App.Vector(0, 0, 1), 0.625), math.radians(0), math.radians(90)),  # 2
    Part.LineSegment(App.Vector(3.31, 2.92, 0), App.Vector(3.286324, 2.92, 0)),  # 3
    Part.LineSegment(App.Vector(3.286324, 2.92, 0), App.Vector(3.3, 2.795, 0)),  # 4
    Part.LineSegment(App.Vector(3.3, 2.795, 0), App.Vector(3.286324, 2.67, 0)),  # 5
    Part.LineSegment(App.Vector(3.286324, 2.67, 0), App.Vector(3.31, 2.67, 0)),  # 6
    Part.ArcOfCircle(Part.Circle(App.Vector(3.31, 2.295, 0), App.Vector(0, 0, 1), 0.375), math.radians(0), math.radians(90)),  # 7
    Part.LineSegment(App.Vector(3.685, 2.295, 0), App.Vector(3.685, 0, 0)),  # 8
    Part.LineSegment(App.Vector(-3.935, 0, 0), App.Vector(-3.685, 0, 0)),  # 9
    Part.LineSegment(App.Vector(-3.685, 0, 0), App.Vector(-3.685, 2.295, 0)),  # 10
    Part.ArcOfCircle(Part.Circle(App.Vector(-3.31, 2.295, 0), App.Vector(0, 0, 1), 0.375), math.radians(90), math.radians(180)),  # 11
    Part.LineSegment(App.Vector(-3.31, 2.67, 0), App.Vector(-3.286324, 2.67, 0)),  # 12
    Part.LineSegment(App.Vector(-3.286324, 2.67, 0), App.Vector(-3.3, 2.795, 0)),  # 13
    Part.LineSegment(App.Vector(-3.3, 2.795, 0), App.Vector(-3.286324, 2.92, 0)),  # 14
    Part.LineSegment(App.Vector(-3.286324, 2.92, 0), App.Vector(-3.31, 2.92, 0)),  # 15
    Part.ArcOfCircle(Part.Circle(App.Vector(-3.31, 2.295, 0), App.Vector(0, 0, 1), 0.625), math.radians(90), math.radians(180)),  # 16
    Part.LineSegment(App.Vector(-3.935, 2.295, 0), App.Vector(-3.935, 0, 0)),  # 17
], False)
sketch17.addConstraint([
    Sketcher.Constraint("Coincident", 0, 2, 1, 1),
    Sketcher.Constraint("Tangent", 1, 2, 2, 1),
    Sketcher.Constraint("Tangent", 2, 2, 3, 1),
    Sketcher.Constraint("Coincident", 3, 2, 4, 1),
    Sketcher.Constraint("Coincident", 4, 2, 5, 1),
    Sketcher.Constraint("Coincident", 5, 2, 6, 1),
    Sketcher.Constraint("Tangent", 6, 2, 7, 2),
    Sketcher.Constraint("Tangent", 7, 1, 8, 1),
    Sketcher.Constraint("Coincident", 8, 2, 0, 1),
    Sketcher.Constraint("Coincident", 9, 2, 10, 1),
    Sketcher.Constraint("Tangent", 10, 2, 11, 2),
    Sketcher.Constraint("Tangent", 11, 1, 12, 1),
    Sketcher.Constraint("Coincident", 12, 2, 13, 1),
    Sketcher.Constraint("Coincident", 13, 2, 14, 1),
    Sketcher.Constraint("Coincident", 14, 2, 15, 1),
    Sketcher.Constraint("Tangent", 15, 2, 16, 1),
    Sketcher.Constraint("Tangent", 16, 2, 17, 1),
    Sketcher.Constraint("Coincident", 17, 2, 9, 1),
    Sketcher.Constraint("Horizontal", 0),
    Sketcher.Constraint("Vertical", 1),
    Sketcher.Constraint("Horizontal", 3),
    Sketcher.Constraint("Horizontal", 6),
    Sketcher.Constraint("Vertical", 8),
    Sketcher.Constraint("Horizontal", 9),
    Sketcher.Constraint("Vertical", 10),
    Sketcher.Constraint("Horizontal", 12),
    Sketcher.Constraint("Horizontal", 15),
    Sketcher.Constraint("Vertical", 17),
    Sketcher.Constraint("Coincident", 7, 3, 2, 3),
    Sketcher.Constraint("Coincident", 16, 3, 11, 3),
    Sketcher.Constraint("Equal", 7, 11),
    Sketcher.Constraint("Equal", 2, 16),
    Sketcher.Constraint("Symmetric", 8, 2, 9, 2, -1, 1),
    Sketcher.Constraint("Symmetric", 5, 2, 12, 2, -2),
    Sketcher.Constraint("Symmetric", 4, 2, 13, 2, -2),
    Sketcher.Constraint("PointOnObject", 0, 2, -1),
    Sketcher.Constraint("Parallel", 4, 13),
    Sketcher.Constraint("Parallel", 5, 14),
    Sketcher.Constraint("Vertical", 3, 2, 5, 2),
    Sketcher.Constraint("Radius", 2, 0.625),
    Sketcher.Constraint("Radius", 7, 0.375),
    Sketcher.Constraint("DistanceX", -1, 1, 4, 2, 3.3),
    Sketcher.Constraint("DistanceY", 1, 1, 1, 2, 2.295),
    Sketcher.Constraint("DistanceX", -1, 1, 2, 3, 3.31),
    Sketcher.Constraint("DistanceX", 3, 2, 3, 1, 0.023676),
])
pocket8 = doc.addObject("PartDesign::Pocket", "Pocket007")
body.addObject(pocket8)
pocket8.Profile = sketch17
pocket8.setExpression("Length", "Params.pocket8_length")

# Sketch on XZ plane
sketch18 = doc.addObject("Sketcher::SketchObject", "Sketch017")
body.addObject(sketch18)
sketch18.AttachmentSupport = (doc.XZ_Plane, [""])
sketch18.MapMode = "FlatFace"
sketch18.AttachmentOffset = App.Placement(App.Vector(0, 0, -4.375), App.Rotation())
sketch18.addGeometry([
    Part.LineSegment(App.Vector(-3.685, 0, 0), App.Vector(-3.935, 0, 0)),  # 0
    Part.LineSegment(App.Vector(-3.935, 0, 0), App.Vector(-3.935, 2.295, 0)),  # 1
    Part.ArcOfCircle(Part.Circle(App.Vector(-3.31, 2.295, 0), App.Vector(0, 0, 1), 0.625), math.radians(90), math.radians(180)),  # 2
    Part.LineSegment(App.Vector(-3.31, 2.92, 0), App.Vector(-3.286324, 2.92, 0)),  # 3
    Part.LineSegment(App.Vector(-3.286324, 2.92, 0), App.Vector(-3.3, 2.795, 0)),  # 4
    Part.LineSegment(App.Vector(-3.3, 2.795, 0), App.Vector(-3.286324, 2.67, 0)),  # 5
    Part.LineSegment(App.Vector(-3.286324, 2.67, 0), App.Vector(-3.31, 2.67, 0)),  # 6
    Part.ArcOfCircle(Part.Circle(App.Vector(-3.31, 2.295, 0), App.Vector(0, 0, 1), 0.375), math.radians(90), math.radians(180)),  # 7
    Part.LineSegment(App.Vector(-3.685, 2.295, 0), App.Vector(-3.685, 0, 0)),  # 8
    Part.LineSegment(App.Vector(3.935, 0, 0), App.Vector(3.685, 0, 0)),  # 9
    Part.LineSegment(App.Vector(3.685, 0, 0), App.Vector(3.685, 2.295, 0)),  # 10
    Part.ArcOfCircle(Part.Circle(App.Vector(3.31, 2.295, 0), App.Vector(0, 0, 1), 0.375), math.radians(0), math.radians(90)),  # 11
    Part.LineSegment(App.Vector(3.31, 2.67, 0), App.Vector(3.286324, 2.67, 0)),  # 12
    Part.LineSegment(App.Vector(3.286324, 2.67, 0), App.Vector(3.3, 2.795, 0)),  # 13
    Part.LineSegment(App.Vector(3.3, 2.795, 0), App.Vector(3.286324, 2.92, 0)),  # 14
    Part.LineSegment(App.Vector(3.286324, 2.92, 0), App.Vector(3.31, 2.92, 0)),  # 15
    Part.ArcOfCircle(Part.Circle(App.Vector(3.31, 2.295, 0), App.Vector(0, 0, 1), 0.625), math.radians(0), math.radians(90)),  # 16
    Part.LineSegment(App.Vector(3.935, 2.295, 0), App.Vector(3.935, 0, 0)),  # 17
], False)
sketch18.addConstraint([
    Sketcher.Constraint("Coincident", 0, 2, 1, 1),
    Sketcher.Constraint("Tangent", 1, 2, 2, 2),
    Sketcher.Constraint("Tangent", 2, 1, 3, 1),
    Sketcher.Constraint("Coincident", 3, 2, 4, 1),
    Sketcher.Constraint("Coincident", 4, 2, 5, 1),
    Sketcher.Constraint("Coincident", 5, 2, 6, 1),
    Sketcher.Constraint("Tangent", 6, 2, 7, 1),
    Sketcher.Constraint("Tangent", 7, 2, 8, 1),
    Sketcher.Constraint("Coincident", 8, 2, 0, 1),
    Sketcher.Constraint("Coincident", 9, 2, 10, 1),
    Sketcher.Constraint("Tangent", 10, 2, 11, 1),
    Sketcher.Constraint("Tangent", 11, 2, 12, 1),
    Sketcher.Constraint("Coincident", 12, 2, 13, 1),
    Sketcher.Constraint("Coincident", 13, 2, 14, 1),
    Sketcher.Constraint("Coincident", 14, 2, 15, 1),
    Sketcher.Constraint("Tangent", 15, 2, 16, 2),
    Sketcher.Constraint("Tangent", 16, 1, 17, 1),
    Sketcher.Constraint("Coincident", 17, 2, 9, 1),
    Sketcher.Constraint("Horizontal", 0),
    Sketcher.Constraint("Vertical", 1),
    Sketcher.Constraint("Horizontal", 3),
    Sketcher.Constraint("Horizontal", 6),
    Sketcher.Constraint("Vertical", 8),
    Sketcher.Constraint("Horizontal", 9),
    Sketcher.Constraint("Vertical", 10),
    Sketcher.Constraint("Horizontal", 12),
    Sketcher.Constraint("Horizontal", 15),
    Sketcher.Constraint("Vertical", 17),
    Sketcher.Constraint("Coincident", 7, 3, 2, 3),
    Sketcher.Constraint("Coincident", 16, 3, 11, 3),
    Sketcher.Constraint("Equal", 7, 11),
    Sketcher.Constraint("Equal", 2, 16),
    Sketcher.Constraint("Symmetric", 8, 2, 9, 2, -1, 1),
    Sketcher.Constraint("Symmetric", 5, 2, 12, 2, -2),
    Sketcher.Constraint("Symmetric", 4, 2, 13, 2, -2),
    Sketcher.Constraint("PointOnObject", 0, 2, -1),
    Sketcher.Constraint("Parallel", 4, 13),
    Sketcher.Constraint("Parallel", 5, 14),
    Sketcher.Constraint("Vertical", 3, 2, 5, 2),
    Sketcher.Constraint("Radius", 2, 0.625),
    Sketcher.Constraint("Radius", 7, 0.375),
    Sketcher.Constraint("DistanceX", 4, 2, -1, 1, 3.3),
    Sketcher.Constraint("DistanceY", 1, 1, 1, 2, 2.295),
    Sketcher.Constraint("DistanceX", 2, 3, -1, 1, 3.31),
    Sketcher.Constraint("DistanceX", 3, 1, 3, 2, 0.023676),
])
pocket9 = doc.addObject("PartDesign::Pocket", "Pocket008")
body.addObject(pocket9)
pocket9.Profile = sketch18
pocket9.setExpression("Length", "Params.pocket9_length")
pocket9.Reversed = True

doc.recompute()
